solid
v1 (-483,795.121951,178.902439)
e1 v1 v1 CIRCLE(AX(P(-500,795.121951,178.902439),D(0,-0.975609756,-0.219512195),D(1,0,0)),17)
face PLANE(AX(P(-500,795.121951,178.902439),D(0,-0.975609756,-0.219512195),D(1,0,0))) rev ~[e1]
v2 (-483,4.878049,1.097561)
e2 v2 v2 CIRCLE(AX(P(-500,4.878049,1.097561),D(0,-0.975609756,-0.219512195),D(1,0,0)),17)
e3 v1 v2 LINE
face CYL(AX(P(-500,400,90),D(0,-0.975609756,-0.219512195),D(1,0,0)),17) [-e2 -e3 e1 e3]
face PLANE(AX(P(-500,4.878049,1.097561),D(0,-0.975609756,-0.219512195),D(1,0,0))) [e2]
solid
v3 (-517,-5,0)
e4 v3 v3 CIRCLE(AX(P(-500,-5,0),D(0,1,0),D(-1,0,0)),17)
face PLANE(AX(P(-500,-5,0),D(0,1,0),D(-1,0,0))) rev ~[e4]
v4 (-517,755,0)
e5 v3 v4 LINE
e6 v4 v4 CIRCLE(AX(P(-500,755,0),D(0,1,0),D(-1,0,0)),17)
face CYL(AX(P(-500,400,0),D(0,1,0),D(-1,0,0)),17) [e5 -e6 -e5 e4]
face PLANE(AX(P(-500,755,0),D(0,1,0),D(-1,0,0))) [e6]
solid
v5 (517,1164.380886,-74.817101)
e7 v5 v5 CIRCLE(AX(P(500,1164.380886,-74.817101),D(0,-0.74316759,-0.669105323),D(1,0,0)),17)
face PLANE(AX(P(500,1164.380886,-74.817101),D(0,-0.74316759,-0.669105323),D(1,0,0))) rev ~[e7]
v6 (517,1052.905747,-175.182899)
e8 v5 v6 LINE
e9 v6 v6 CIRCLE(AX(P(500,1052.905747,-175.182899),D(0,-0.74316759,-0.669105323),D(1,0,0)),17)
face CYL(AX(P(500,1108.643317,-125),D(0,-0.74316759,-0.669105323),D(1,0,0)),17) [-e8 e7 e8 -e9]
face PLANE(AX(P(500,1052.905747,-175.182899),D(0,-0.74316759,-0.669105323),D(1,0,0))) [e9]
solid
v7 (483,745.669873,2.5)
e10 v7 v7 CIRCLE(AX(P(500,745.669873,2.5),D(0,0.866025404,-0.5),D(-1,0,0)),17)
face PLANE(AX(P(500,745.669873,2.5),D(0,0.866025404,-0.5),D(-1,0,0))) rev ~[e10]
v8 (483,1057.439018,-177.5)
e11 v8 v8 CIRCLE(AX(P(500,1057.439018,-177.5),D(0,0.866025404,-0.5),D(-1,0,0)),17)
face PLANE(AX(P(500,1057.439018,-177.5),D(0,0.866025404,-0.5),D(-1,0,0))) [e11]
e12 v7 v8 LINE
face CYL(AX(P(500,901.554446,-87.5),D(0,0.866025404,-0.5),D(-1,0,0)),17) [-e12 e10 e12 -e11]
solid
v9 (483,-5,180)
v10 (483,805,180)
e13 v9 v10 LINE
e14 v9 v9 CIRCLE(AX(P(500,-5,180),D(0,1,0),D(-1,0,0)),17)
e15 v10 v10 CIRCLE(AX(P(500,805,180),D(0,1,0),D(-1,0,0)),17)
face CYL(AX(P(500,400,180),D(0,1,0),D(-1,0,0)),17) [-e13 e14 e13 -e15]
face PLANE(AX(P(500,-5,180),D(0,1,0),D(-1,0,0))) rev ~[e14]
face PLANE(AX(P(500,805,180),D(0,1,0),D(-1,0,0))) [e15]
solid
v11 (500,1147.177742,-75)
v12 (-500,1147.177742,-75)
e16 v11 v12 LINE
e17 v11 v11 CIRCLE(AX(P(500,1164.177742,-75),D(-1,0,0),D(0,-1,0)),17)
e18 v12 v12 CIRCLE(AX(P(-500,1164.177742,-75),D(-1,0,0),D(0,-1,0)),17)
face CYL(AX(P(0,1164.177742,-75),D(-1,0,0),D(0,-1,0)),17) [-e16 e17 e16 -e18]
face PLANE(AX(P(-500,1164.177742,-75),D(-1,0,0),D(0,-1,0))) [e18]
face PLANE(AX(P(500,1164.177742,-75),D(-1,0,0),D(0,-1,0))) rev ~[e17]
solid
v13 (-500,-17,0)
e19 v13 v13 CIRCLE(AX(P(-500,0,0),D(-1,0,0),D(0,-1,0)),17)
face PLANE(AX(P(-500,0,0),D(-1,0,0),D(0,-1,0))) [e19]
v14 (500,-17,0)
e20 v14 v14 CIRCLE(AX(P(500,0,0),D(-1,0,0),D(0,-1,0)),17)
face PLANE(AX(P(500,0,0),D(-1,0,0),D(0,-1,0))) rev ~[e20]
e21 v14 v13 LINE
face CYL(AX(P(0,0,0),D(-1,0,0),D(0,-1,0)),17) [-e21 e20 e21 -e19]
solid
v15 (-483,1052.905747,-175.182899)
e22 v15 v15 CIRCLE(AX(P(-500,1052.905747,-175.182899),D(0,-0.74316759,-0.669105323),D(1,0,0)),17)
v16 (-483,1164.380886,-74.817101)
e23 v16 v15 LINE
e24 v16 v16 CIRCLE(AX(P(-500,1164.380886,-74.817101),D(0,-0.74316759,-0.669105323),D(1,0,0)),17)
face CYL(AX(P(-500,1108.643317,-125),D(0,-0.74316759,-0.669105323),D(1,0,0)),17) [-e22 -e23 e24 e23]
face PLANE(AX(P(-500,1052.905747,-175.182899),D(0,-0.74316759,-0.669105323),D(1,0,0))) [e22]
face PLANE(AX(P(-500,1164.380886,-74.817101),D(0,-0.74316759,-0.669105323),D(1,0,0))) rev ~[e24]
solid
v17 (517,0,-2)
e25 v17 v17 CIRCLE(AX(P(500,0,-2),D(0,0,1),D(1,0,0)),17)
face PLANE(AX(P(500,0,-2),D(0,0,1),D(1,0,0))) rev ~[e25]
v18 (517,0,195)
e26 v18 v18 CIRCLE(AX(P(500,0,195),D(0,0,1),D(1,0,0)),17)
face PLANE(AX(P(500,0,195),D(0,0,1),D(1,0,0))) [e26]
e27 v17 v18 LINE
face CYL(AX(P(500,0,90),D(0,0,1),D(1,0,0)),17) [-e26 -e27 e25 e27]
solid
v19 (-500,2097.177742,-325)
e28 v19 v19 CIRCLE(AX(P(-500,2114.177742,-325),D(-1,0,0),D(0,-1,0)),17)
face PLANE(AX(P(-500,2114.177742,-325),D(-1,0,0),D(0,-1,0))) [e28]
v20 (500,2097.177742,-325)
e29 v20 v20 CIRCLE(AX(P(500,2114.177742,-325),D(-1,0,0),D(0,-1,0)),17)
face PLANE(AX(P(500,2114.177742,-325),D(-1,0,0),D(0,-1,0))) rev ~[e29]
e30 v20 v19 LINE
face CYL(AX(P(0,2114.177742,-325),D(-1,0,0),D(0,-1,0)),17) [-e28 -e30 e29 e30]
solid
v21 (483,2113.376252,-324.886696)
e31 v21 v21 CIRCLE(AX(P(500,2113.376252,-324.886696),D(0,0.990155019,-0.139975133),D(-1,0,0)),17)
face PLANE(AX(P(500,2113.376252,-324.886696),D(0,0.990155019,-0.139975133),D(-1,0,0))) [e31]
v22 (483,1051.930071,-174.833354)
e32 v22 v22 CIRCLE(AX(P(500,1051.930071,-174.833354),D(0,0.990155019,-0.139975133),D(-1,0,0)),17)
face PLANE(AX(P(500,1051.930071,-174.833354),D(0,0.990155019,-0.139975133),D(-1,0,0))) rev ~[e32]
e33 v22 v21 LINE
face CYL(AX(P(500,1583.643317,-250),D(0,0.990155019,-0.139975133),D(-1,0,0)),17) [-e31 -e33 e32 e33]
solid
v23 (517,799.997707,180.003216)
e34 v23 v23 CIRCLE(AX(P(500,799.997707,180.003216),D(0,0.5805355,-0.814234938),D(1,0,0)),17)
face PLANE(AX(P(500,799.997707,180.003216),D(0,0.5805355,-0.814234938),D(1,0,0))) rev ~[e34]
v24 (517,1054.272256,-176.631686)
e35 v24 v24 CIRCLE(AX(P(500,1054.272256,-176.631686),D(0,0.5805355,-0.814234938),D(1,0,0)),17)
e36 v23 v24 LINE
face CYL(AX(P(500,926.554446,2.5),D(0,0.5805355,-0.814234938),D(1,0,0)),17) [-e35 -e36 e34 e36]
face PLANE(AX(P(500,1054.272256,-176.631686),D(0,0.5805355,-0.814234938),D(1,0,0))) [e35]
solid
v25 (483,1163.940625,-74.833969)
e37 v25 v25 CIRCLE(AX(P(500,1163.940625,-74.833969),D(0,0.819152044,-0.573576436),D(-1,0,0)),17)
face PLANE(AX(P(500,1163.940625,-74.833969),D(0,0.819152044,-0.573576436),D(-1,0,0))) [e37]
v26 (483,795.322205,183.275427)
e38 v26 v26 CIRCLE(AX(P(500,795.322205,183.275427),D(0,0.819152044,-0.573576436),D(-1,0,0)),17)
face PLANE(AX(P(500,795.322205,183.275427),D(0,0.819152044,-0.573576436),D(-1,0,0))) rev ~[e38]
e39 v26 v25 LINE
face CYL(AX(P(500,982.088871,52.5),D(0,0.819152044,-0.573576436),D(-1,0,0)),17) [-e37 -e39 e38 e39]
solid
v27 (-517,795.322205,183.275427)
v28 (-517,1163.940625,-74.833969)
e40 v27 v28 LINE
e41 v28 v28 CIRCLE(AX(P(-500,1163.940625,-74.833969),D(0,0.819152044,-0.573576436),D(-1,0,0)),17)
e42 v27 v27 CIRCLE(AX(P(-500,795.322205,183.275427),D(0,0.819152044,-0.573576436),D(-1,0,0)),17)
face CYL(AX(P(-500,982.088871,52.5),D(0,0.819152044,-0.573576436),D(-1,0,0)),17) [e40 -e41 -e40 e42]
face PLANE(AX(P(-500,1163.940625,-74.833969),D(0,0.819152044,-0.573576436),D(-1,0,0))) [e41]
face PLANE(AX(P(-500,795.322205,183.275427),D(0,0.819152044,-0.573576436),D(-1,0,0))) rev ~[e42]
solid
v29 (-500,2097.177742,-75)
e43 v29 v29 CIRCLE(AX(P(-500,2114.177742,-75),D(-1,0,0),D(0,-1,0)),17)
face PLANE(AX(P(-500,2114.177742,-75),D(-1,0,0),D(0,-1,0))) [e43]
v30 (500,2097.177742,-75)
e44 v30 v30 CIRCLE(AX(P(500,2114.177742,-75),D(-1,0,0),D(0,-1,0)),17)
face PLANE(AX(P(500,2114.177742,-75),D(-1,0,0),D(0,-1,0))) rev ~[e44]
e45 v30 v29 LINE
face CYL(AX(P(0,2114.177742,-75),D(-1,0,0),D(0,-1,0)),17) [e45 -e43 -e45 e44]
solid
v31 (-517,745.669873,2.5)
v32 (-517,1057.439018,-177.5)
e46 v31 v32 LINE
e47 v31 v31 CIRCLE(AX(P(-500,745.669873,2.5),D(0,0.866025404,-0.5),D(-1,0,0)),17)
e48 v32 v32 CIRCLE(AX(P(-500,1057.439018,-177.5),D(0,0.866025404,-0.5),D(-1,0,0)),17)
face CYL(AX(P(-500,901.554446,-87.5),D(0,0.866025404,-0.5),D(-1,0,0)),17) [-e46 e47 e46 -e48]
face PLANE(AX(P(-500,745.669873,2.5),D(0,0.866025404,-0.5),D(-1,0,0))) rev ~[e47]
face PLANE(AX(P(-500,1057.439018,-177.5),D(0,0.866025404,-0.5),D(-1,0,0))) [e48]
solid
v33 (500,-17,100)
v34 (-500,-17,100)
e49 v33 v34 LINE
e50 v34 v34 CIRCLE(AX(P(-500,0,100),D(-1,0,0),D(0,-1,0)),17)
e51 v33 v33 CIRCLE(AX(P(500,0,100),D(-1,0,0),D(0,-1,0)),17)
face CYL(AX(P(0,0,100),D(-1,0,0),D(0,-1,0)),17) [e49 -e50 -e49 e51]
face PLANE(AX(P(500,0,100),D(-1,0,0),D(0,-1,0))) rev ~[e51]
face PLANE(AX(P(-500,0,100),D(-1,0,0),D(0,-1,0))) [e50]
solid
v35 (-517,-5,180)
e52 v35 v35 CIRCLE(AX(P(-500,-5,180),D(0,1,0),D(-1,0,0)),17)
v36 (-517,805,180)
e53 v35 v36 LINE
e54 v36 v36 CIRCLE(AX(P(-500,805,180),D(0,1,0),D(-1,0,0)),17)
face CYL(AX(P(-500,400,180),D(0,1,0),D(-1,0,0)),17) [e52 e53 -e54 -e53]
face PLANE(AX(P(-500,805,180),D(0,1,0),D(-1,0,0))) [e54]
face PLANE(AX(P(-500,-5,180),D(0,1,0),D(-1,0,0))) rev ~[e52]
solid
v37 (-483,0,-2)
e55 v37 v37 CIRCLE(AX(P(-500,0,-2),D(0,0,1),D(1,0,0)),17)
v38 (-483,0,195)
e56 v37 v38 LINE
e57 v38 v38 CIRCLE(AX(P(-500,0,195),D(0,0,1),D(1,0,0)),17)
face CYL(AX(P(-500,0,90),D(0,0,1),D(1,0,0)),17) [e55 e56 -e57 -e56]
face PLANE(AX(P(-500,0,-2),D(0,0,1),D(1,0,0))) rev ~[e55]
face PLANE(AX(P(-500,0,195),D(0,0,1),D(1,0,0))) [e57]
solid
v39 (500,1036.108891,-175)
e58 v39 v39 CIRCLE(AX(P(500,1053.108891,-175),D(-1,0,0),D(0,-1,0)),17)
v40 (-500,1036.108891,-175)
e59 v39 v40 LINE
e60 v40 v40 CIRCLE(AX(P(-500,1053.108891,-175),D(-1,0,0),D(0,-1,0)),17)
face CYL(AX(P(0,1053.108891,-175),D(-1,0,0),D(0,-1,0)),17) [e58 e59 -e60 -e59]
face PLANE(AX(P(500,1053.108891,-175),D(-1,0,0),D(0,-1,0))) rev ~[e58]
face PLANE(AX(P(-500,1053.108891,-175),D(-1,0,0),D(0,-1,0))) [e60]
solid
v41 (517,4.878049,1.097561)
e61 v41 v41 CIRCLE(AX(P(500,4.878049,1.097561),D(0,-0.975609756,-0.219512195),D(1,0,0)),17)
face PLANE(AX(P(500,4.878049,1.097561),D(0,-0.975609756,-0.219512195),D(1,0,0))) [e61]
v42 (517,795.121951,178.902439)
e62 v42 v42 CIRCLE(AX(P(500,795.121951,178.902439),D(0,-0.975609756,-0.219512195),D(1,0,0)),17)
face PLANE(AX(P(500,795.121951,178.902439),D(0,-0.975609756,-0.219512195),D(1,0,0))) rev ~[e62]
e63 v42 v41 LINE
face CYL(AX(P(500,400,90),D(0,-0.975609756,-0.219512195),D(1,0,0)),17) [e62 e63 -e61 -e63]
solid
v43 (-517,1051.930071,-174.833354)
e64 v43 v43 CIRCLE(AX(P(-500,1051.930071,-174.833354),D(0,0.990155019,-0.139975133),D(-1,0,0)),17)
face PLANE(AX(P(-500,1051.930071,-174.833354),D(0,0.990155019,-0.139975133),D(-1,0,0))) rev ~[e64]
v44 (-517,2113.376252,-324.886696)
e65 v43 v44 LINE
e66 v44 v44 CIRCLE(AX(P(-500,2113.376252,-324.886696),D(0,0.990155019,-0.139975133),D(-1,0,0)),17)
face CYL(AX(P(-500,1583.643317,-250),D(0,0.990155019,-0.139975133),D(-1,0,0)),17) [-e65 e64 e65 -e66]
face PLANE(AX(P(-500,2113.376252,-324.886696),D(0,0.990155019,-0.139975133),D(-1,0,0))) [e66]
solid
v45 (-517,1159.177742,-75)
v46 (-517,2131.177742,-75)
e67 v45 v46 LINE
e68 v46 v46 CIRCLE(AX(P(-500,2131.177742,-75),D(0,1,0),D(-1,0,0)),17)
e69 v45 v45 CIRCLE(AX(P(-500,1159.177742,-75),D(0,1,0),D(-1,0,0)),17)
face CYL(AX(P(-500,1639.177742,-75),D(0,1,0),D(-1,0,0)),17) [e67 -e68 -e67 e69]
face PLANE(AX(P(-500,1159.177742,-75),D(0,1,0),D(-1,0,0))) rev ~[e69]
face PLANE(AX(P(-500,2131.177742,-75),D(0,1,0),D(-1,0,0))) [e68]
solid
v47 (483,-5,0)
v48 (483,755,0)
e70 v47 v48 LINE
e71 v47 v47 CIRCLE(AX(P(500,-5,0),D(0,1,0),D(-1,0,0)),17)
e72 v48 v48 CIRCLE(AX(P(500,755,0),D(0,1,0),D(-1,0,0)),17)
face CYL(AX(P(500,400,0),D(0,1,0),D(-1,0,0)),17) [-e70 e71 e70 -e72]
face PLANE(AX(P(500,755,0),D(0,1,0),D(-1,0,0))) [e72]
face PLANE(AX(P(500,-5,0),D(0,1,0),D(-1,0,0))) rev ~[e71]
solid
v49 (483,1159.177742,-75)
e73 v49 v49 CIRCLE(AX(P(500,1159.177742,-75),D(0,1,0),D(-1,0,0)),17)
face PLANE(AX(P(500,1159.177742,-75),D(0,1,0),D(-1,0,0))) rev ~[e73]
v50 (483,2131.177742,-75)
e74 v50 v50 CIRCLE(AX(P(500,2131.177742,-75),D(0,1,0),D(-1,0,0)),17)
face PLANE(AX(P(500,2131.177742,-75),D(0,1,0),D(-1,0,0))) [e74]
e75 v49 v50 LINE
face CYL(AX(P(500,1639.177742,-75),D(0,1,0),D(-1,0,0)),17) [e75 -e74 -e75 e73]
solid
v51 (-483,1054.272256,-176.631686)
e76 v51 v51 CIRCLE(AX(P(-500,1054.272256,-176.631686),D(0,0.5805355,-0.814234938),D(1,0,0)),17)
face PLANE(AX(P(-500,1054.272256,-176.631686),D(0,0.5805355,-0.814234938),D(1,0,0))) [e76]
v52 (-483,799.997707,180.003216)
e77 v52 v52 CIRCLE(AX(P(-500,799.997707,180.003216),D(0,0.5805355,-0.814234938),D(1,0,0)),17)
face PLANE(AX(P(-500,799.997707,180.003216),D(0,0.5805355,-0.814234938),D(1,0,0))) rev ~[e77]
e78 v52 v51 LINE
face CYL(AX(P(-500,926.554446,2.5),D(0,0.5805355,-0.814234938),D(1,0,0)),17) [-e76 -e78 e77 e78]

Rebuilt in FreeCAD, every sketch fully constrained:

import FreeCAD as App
import Part
import Sketcher

doc = App.newDocument("Part")
body = doc.addObject("PartDesign::Body", "Body")

# Sketch on XZ plane
sketch1 = body.newObject("Sketcher::SketchObject", "Sketch")
sketch1.AttachmentSupport = (doc.getObject("XZ_Plane"), [""])
sketch1.MapMode = "FlatFace"
sketch1.AttachmentOffset = App.Placement(App.Vector(0, 0, -400), App.Rotation())
sketch1.addGeometry(Part.Circle(App.Vector(500, 180, 0), App.Vector(0, 0, 1), 17), False)
sketch1.addConstraint([
    Sketcher.Constraint("Diameter", 0, 34.0),
    Sketcher.Constraint("DistanceX", -1, 1, 0, 3, 500.0),
    Sketcher.Constraint("DistanceY", -1, 1, 0, 3, 180.0),
])
pad1 = body.newObject("PartDesign::Pad", "Pad")
pad1.Profile = sketch1
pad1.Type = "TwoLengths"
pad1.Length = 405
pad1.Length2 = 405
pad1.Reversed = True
body2 = doc.addObject("PartDesign::Body", "Body001")

# Sketch on XZ plane
sketch2 = body2.newObject("Sketcher::SketchObject", "Sketch001")
sketch2.AttachmentSupport = (doc.getObject("XZ_Plane001"), [""])
sketch2.MapMode = "FlatFace"
sketch2.AttachmentOffset = App.Placement(App.Vector(0, 0, -400), App.Rotation())
sketch2.addGeometry(Part.Circle(App.Vector(-500, 180, 0), App.Vector(0, 0, 1), 17), False)
sketch2.addConstraint([
    Sketcher.Constraint("Diameter", 0, 34.0),
    Sketcher.Constraint("DistanceX", 0, 3, -1, 1, 500.0),
    Sketcher.Constraint("DistanceY", -1, 1, 0, 3, 180.0),
])
pad2 = body2.newObject("PartDesign::Pad", "Pad001")
pad2.Profile = sketch2
pad2.Type = "TwoLengths"
pad2.Length = 405
pad2.Length2 = 405
pad2.Reversed = True
body3 = doc.addObject("PartDesign::Body", "Body002")

# Sketch on XZ plane
sketch3 = body3.newObject("Sketcher::SketchObject", "Sketch002")
sketch3.AttachmentSupport = (doc.getObject("XZ_Plane002"), [""])
sketch3.MapMode = "FlatFace"
sketch3.AttachmentOffset = App.Placement(App.Vector(0, 0, -400), App.Rotation())
sketch3.addGeometry(Part.Circle(App.Vector(500, 0, 0), App.Vector(0, 0, 1), 17), False)
sketch3.addConstraint([
    Sketcher.Constraint("PointOnObject", 0, 3, -1),
    Sketcher.Constraint("Diameter", 0, 34.0),
    Sketcher.Constraint("DistanceX", -1, 1, 0, 3, 500.0),
])
pad3 = body3.newObject("PartDesign::Pad", "Pad002")
pad3.Profile = sketch3
pad3.Type = "TwoLengths"
pad3.Length = 355
pad3.Length2 = 405
pad3.Reversed = True
body4 = doc.addObject("PartDesign::Body", "Body003")

# Sketch on XZ plane
sketch4 = body4.newObject("Sketcher::SketchObject", "Sketch003")
sketch4.AttachmentSupport = (doc.getObject("XZ_Plane003"), [""])
sketch4.MapMode = "FlatFace"
sketch4.AttachmentOffset = App.Placement(App.Vector(0, 0, -400), App.Rotation())
sketch4.addGeometry(Part.Circle(App.Vector(-500, 0, 0), App.Vector(0, 0, 1), 17), False)
sketch4.addConstraint([
    Sketcher.Constraint("PointOnObject", 0, 3, -1),
    Sketcher.Constraint("Diameter", 0, 34.0),
    Sketcher.Constraint("DistanceX", 0, 3, -1, 1, 500.0),
])
pad4 = body4.newObject("PartDesign::Pad", "Pad003")
pad4.Profile = sketch4
pad4.Type = "TwoLengths"
pad4.Length = 355
pad4.Length2 = 405
pad4.Reversed = True
body5 = doc.addObject("PartDesign::Body", "Body004")

# Sketch on an angled plane
sketch5 = body5.newObject("Sketcher::SketchObject", "Sketch004")
sketch5.Placement = App.Placement(App.Vector(0, 634.324592, -444.158861), App.Rotation(App.Vector(-1, 0, 0), App.Vector(0, 0.573576436, 0.819152044), App.Vector(0, 0.819152044, -0.573576436), "ZXY"))
sketch5.addGeometry(Part.Circle(App.Vector(-500, 606.308517, 0), App.Vector(0, 0, 1), 17), False)
sketch5.addConstraint([
    Sketcher.Constraint("Diameter", 0, 34.0),
    Sketcher.Constraint("DistanceX", 0, 3, -1, 1, 500.0),
    Sketcher.Constraint("DistanceY", -1, 1, 0, 3, 606.308517),
])
pad5 = body5.newObject("PartDesign::Pad", "Pad004")
pad5.Profile = sketch5
pad5.Type = "TwoLengths"
pad5.Length = 222
pad5.Length2 = 228
body6 = doc.addObject("PartDesign::Body", "Body005")

# Sketch on an angled plane
sketch6 = body6.newObject("Sketcher::SketchObject", "Sketch005")
sketch6.Placement = App.Placement(App.Vector(0, 634.324592, -444.158861), App.Rotation(App.Vector(-1, 0, 0), App.Vector(0, 0.573576436, 0.819152044), App.Vector(0, 0.819152044, -0.573576436), "ZXY"))
sketch6.addGeometry(Part.Circle(App.Vector(500, 606.308517, 0), App.Vector(0, 0, 1), 17), False)
sketch6.addConstraint([
    Sketcher.Constraint("Diameter", 0, 34.0),
    Sketcher.Constraint("DistanceX", -1, 1, 0, 3, 500.0),
    Sketcher.Constraint("DistanceY", -1, 1, 0, 3, 606.308517),
])
pad6 = body6.newObject("PartDesign::Pad", "Pad005")
pad6.Profile = sketch6
pad6.Type = "TwoLengths"
pad6.Length = 222
pad6.Length2 = 228
body7 = doc.addObject("PartDesign::Body", "Body006")

# Sketch on an angled plane
sketch7 = body7.newObject("Sketcher::SketchObject", "Sketch006")
sketch7.Placement = App.Placement(App.Vector(0, 714.054446, -412.259526), App.Rotation(App.Vector(-1, 0, 0), App.Vector(0, 0.5, 0.866025404), App.Vector(0, 0.866025404, -0.5), "ZXY"))
sketch7.addGeometry(Part.Circle(App.Vector(-500, 375, 0), App.Vector(0, 0, 1), 17), False)
sketch7.addConstraint([
    Sketcher.Constraint("Diameter", 0, 34.0),
    Sketcher.Constraint("DistanceX", 0, 3, -1, 1, 500.0),
    Sketcher.Constraint("DistanceY", -1, 1, 0, 3, 375.0),
])
pad7 = body7.newObject("PartDesign::Pad", "Pad006")
pad7.Profile = sketch7
pad7.Type = "TwoLengths"
pad7.Length = 180
pad7.Length2 = 180
body8 = doc.addObject("PartDesign::Body", "Body007")

# Sketch on an angled plane
sketch8 = body8.newObject("Sketcher::SketchObject", "Sketch007")
sketch8.Placement = App.Placement(App.Vector(0, 714.054446, -412.259526), App.Rotation(App.Vector(-1, 0, 0), App.Vector(0, 0.5, 0.866025404), App.Vector(0, 0.866025404, -0.5), "ZXY"))
sketch8.addGeometry(Part.Circle(App.Vector(500, 375, 0), App.Vector(0, 0, 1), 17), False)
sketch8.addConstraint([
    Sketcher.Constraint("Diameter", 0, 34.0),
    Sketcher.Constraint("DistanceX", -1, 1, 0, 3, 500.0),
    Sketcher.Constraint("DistanceY", -1, 1, 0, 3, 375.0),
])
pad8 = body8.newObject("PartDesign::Pad", "Pad007")
pad8.Profile = sketch8
pad8.Type = "TwoLengths"
pad8.Length = 180
pad8.Length2 = 180
body9 = doc.addObject("PartDesign::Body", "Body008")

# Sketch on YZ plane
sketch9 = body9.newObject("Sketcher::SketchObject", "Sketch008")
sketch9.AttachmentSupport = (doc.getObject("YZ_Plane008"), [""])
sketch9.MapMode = "FlatFace"
sketch9.addGeometry(Part.Circle(App.Vector(1053.108891, -175, 0), App.Vector(0, 0, 1), 17), False)
sketch9.addConstraint([
    Sketcher.Constraint("Diameter", 0, 34.0),
    Sketcher.Constraint("DistanceY", 0, 3, -1, 1, 175.0),
    Sketcher.Constraint("DistanceX", -1, 1, 0, 3, 1053.108891),
])
pad9 = body9.newObject("PartDesign::Pad", "Pad008")
pad9.Profile = sketch9
pad9.Type = "TwoLengths"
pad9.Length = 500
pad9.Length2 = 500
pad9.Reversed = True
body10 = doc.addObject("PartDesign::Body", "Body009")

# Sketch on YZ plane
sketch10 = body10.newObject("Sketcher::SketchObject", "Sketch009")
sketch10.AttachmentSupport = (doc.getObject("YZ_Plane009"), [""])
sketch10.MapMode = "FlatFace"
sketch10.addGeometry(Part.Circle(App.Vector(1164.177742, -75, 0), App.Vector(0, 0, 1), 17), False)
sketch10.addConstraint([
    Sketcher.Constraint("Diameter", 0, 34.0),
    Sketcher.Constraint("DistanceY", 0, 3, -1, 1, 75.0),
    Sketcher.Constraint("DistanceX", -1, 1, 0, 3, 1164.177742),
])
pad10 = body10.newObject("PartDesign::Pad", "Pad009")
pad10.Profile = sketch10
pad10.Type = "TwoLengths"
pad10.Length = 500
pad10.Length2 = 500
pad10.Reversed = True
body11 = doc.addObject("PartDesign::Body", "Body010")

# Sketch on YZ plane
sketch11 = body11.newObject("Sketcher::SketchObject", "Sketch010")
sketch11.AttachmentSupport = (doc.getObject("YZ_Plane010"), [""])
sketch11.MapMode = "FlatFace"
sketch11.addGeometry(Part.Circle(App.Vector(0, 100, 0), App.Vector(0, 0, 1), 17), False)
sketch11.addConstraint([
    Sketcher.Constraint("PointOnObject", 0, 3, -2),
    Sketcher.Constraint("Diameter", 0, 34.0),
    Sketcher.Constraint("DistanceY", -1, 1, 0, 3, 100.0),
])
pad11 = body11.newObject("PartDesign::Pad", "Pad010")
pad11.Profile = sketch11
pad11.Type = "TwoLengths"
pad11.Length = 500
pad11.Length2 = 500
pad11.Reversed = True
body12 = doc.addObject("PartDesign::Body", "Body011")

# Sketch on YZ plane
sketch12 = body12.newObject("Sketcher::SketchObject", "Sketch011")
sketch12.AttachmentSupport = (doc.getObject("YZ_Plane011"), [""])
sketch12.MapMode = "FlatFace"
sketch12.addGeometry(Part.Circle(App.Vector(0, 0, 0), App.Vector(0, 0, 1), 17), False)
sketch12.addConstraint([
    Sketcher.Constraint("Coincident", 0, 3, -1, 1),
    Sketcher.Constraint("Diameter", 0, 34.0),
])
pad12 = body12.newObject("PartDesign::Pad", "Pad011")
pad12.Profile = sketch12
pad12.Type = "TwoLengths"
pad12.Length = 500
pad12.Length2 = 500
pad12.Reversed = True
body13 = doc.addObject("PartDesign::Body", "Body012")

# Sketch on YZ plane
sketch13 = body13.newObject("Sketcher::SketchObject", "Sketch012")
sketch13.AttachmentSupport = (doc.getObject("YZ_Plane012"), [""])
sketch13.MapMode = "FlatFace"
sketch13.addGeometry(Part.Circle(App.Vector(2114.177742, -75, 0), App.Vector(0, 0, 1), 17), False)
sketch13.addConstraint([
    Sketcher.Constraint("Diameter", 0, 34.0),
    Sketcher.Constraint("DistanceY", 0, 3, -1, 1, 75.0),
    Sketcher.Constraint("DistanceX", -1, 1, 0, 3, 2114.177742),
])
pad13 = body13.newObject("PartDesign::Pad", "Pad012")
pad13.Profile = sketch13
pad13.Type = "TwoLengths"
pad13.Length = 500
pad13.Length2 = 500
pad13.Reversed = True
body14 = doc.addObject("PartDesign::Body", "Body013")

# Sketch on YZ plane
sketch14 = body14.newObject("Sketcher::SketchObject", "Sketch013")
sketch14.AttachmentSupport = (doc.getObject("YZ_Plane013"), [""])
sketch14.MapMode = "FlatFace"
sketch14.addGeometry(Part.Circle(App.Vector(2114.177742, -325, 0), App.Vector(0, 0, 1), 17), False)
sketch14.addConstraint([
    Sketcher.Constraint("Diameter", 0, 34.0),
    Sketcher.Constraint("DistanceY", 0, 3, -1, 1, 325.0),
    Sketcher.Constraint("DistanceX", -1, 1, 0, 3, 2114.177742),
])
pad14 = body14.newObject("PartDesign::Pad", "Pad013")
pad14.Profile = sketch14
pad14.Type = "TwoLengths"
pad14.Length = 500
pad14.Length2 = 500
pad14.Reversed = True
body15 = doc.addObject("PartDesign::Body", "Body014")

# Sketch on XY plane
sketch15 = body15.newObject("Sketcher::SketchObject", "Sketch014")
sketch15.AttachmentSupport = (doc.getObject("XY_Plane014"), [""])
sketch15.MapMode = "FlatFace"
sketch15.AttachmentOffset = App.Placement(App.Vector(0, 0, 90), App.Rotation())
sketch15.addGeometry(Part.Circle(App.Vector(-500, 0, 0), App.Vector(0, 0, 1), 17), False)
sketch15.addConstraint([
    Sketcher.Constraint("PointOnObject", 0, 3, -1),
    Sketcher.Constraint("Diameter", 0, 34.0),
    Sketcher.Constraint("DistanceX", 0, 3, -1, 1, 500.0),
])
pad15 = body15.newObject("PartDesign::Pad", "Pad014")
pad15.Profile = sketch15
pad15.Type = "TwoLengths"
pad15.Length = 105
pad15.Length2 = 92
body16 = doc.addObject("PartDesign::Body", "Body015")

# Sketch on XY plane
sketch16 = body16.newObject("Sketcher::SketchObject", "Sketch015")
sketch16.AttachmentSupport = (doc.getObject("XY_Plane015"), [""])
sketch16.MapMode = "FlatFace"
sketch16.AttachmentOffset = App.Placement(App.Vector(0, 0, 90), App.Rotation())
sketch16.addGeometry(Part.Circle(App.Vector(500, 0, 0), App.Vector(0, 0, 1), 17), False)
sketch16.addConstraint([
    Sketcher.Constraint("PointOnObject", 0, 3, -1),
    Sketcher.Constraint("Diameter", 0, 34.0),
    Sketcher.Constraint("DistanceX", -1, 1, 0, 3, 500.0),
])
pad16 = body16.newObject("PartDesign::Pad", "Pad015")
pad16.Profile = sketch16
pad16.Type = "TwoLengths"
pad16.Length = 105
pad16.Length2 = 92
body17 = doc.addObject("PartDesign::Body", "Body016")

# Sketch on an angled plane
sketch17 = body17.newObject("Sketcher::SketchObject", "Sketch016")
sketch17.Placement = App.Placement(App.Vector(0, 400, 90), App.Rotation(App.Vector(1, 0, 0), App.Vector(0, -0.219512195, 0.975609756), App.Vector(0, -0.975609756, -0.219512195), "ZXY"))
sketch17.addGeometry(Part.Circle(App.Vector(-500, 0, 0), App.Vector(0, 0, 1), 17), False)
sketch17.addConstraint([
    Sketcher.Constraint("PointOnObject", 0, 3, -1),
    Sketcher.Constraint("Diameter", 0, 34.0),
    Sketcher.Constraint("DistanceX", 0, 3, -1, 1, 500.0),
])
pad17 = body17.newObject("PartDesign::Pad", "Pad016")
pad17.Profile = sketch17
pad17.Type = "TwoLengths"
pad17.Length = 405
pad17.Length2 = 405
body18 = doc.addObject("PartDesign::Body", "Body017")

# Sketch on an angled plane
sketch18 = body18.newObject("Sketcher::SketchObject", "Sketch017")
sketch18.Placement = App.Placement(App.Vector(0, 400, 90), App.Rotation(App.Vector(1, 0, 0), App.Vector(0, -0.219512195, 0.975609756), App.Vector(0, -0.975609756, -0.219512195), "ZXY"))
sketch18.addGeometry(Part.Circle(App.Vector(500, 0, 0), App.Vector(0, 0, 1), 17), False)
sketch18.addConstraint([
    Sketcher.Constraint("PointOnObject", 0, 3, -1),
    Sketcher.Constraint("Diameter", 0, 34.0),
    Sketcher.Constraint("DistanceX", -1, 1, 0, 3, 500.0),
])
pad18 = body18.newObject("PartDesign::Pad", "Pad017")
pad18.Profile = sketch18
pad18.Type = "TwoLengths"
pad18.Length = 405
pad18.Length2 = 405
body19 = doc.addObject("PartDesign::Body", "Body018")

# Sketch on an angled plane
sketch19 = body19.newObject("Sketcher::SketchObject", "Sketch018")
sketch19.Placement = App.Placement(App.Vector(0, 311.087007, -436.317693), App.Rotation(App.Vector(1, 0, 0), App.Vector(0, -0.814234938, -0.5805355), App.Vector(0, 0.5805355, -0.814234938), "ZXY"))
sketch19.addGeometry(Part.Circle(App.Vector(-500, -755.884341, 0), App.Vector(0, 0, 1), 17), False)
sketch19.addConstraint([
    Sketcher.Constraint("Diameter", 0, 34.0),
    Sketcher.Constraint("DistanceX", 0, 3, -1, 1, 500.0),
    Sketcher.Constraint("DistanceY", 0, 3, -1, 1, 755.884341),
])
pad19 = body19.newObject("PartDesign::Pad", "Pad018")
pad19.Profile = sketch19
pad19.Type = "TwoLengths"
pad19.Length = 220
pad19.Length2 = 218
body20 = doc.addObject("PartDesign::Body", "Body019")

# Sketch on an angled plane
sketch20 = body20.newObject("Sketcher::SketchObject", "Sketch019")
sketch20.Placement = App.Placement(App.Vector(0, 311.087007, -436.317693), App.Rotation(App.Vector(1, 0, 0), App.Vector(0, -0.814234938, -0.5805355), App.Vector(0, 0.5805355, -0.814234938), "ZXY"))
sketch20.addGeometry(Part.Circle(App.Vector(500, -755.884341, 0), App.Vector(0, 0, 1), 17), False)
sketch20.addConstraint([
    Sketcher.Constraint("Diameter", 0, 34.0),
    Sketcher.Constraint("DistanceX", -1, 1, 0, 3, 500.0),
    Sketcher.Constraint("DistanceY", 0, 3, -1, 1, 755.884341),
])
pad20 = body20.newObject("PartDesign::Pad", "Pad019")
pad20.Profile = sketch20
pad20.Type = "TwoLengths"
pad20.Length = 220
pad20.Length2 = 218
body21 = doc.addObject("PartDesign::Body", "Body020")

# Sketch on an angled plane
sketch21 = body21.newObject("Sketcher::SketchObject", "Sketch020")
sketch21.Placement = App.Placement(App.Vector(0, 550.144387, 495.318341), App.Rotation(App.Vector(1, 0, 0), App.Vector(0, -0.669105323, 0.74316759), App.Vector(0, -0.74316759, -0.669105323), "ZXY"))
sketch21.addGeometry(Part.Circle(App.Vector(-500, -834.695093, 0), App.Vector(0, 0, 1), 17), False)
sketch21.addConstraint([
    Sketcher.Constraint("Diameter", 0, 34.0),
    Sketcher.Constraint("DistanceX", 0, 3, -1, 1, 500.0),
    Sketcher.Constraint("DistanceY", 0, 3, -1, 1, 834.695093),
])
pad21 = body21.newObject("PartDesign::Pad", "Pad020")
pad21.Profile = sketch21
pad21.Type = "TwoLengths"
pad21.Length = 75
pad21.Length2 = 75
body22 = doc.addObject("PartDesign::Body", "Body021")

# Sketch on an angled plane
sketch22 = body22.newObject("Sketcher::SketchObject", "Sketch021")
sketch22.Placement = App.Placement(App.Vector(0, 550.144387, 495.318341), App.Rotation(App.Vector(1, 0, 0), App.Vector(0, -0.669105323, 0.74316759), App.Vector(0, -0.74316759, -0.669105323), "ZXY"))
sketch22.addGeometry(Part.Circle(App.Vector(500, -834.695093, 0), App.Vector(0, 0, 1), 17), False)
sketch22.addConstraint([
    Sketcher.Constraint("Diameter", 0, 34.0),
    Sketcher.Constraint("DistanceX", -1, 1, 0, 3, 500.0),
    Sketcher.Constraint("DistanceY", 0, 3, -1, 1, 834.695093),
])
pad22 = body22.newObject("PartDesign::Pad", "Pad021")
pad22.Profile = sketch22
pad22.Type = "TwoLengths"
pad22.Length = 75
pad22.Length2 = 75
body23 = doc.addObject("PartDesign::Body", "Body022")

# Sketch on XZ plane
sketch23 = body23.newObject("Sketcher::SketchObject", "Sketch022")
sketch23.AttachmentSupport = (doc.getObject("XZ_Plane022"), [""])
sketch23.MapMode = "FlatFace"
sketch23.AttachmentOffset = App.Placement(App.Vector(0, 0, -1639.177742), App.Rotation())
sketch23.addGeometry(Part.Circle(App.Vector(500, -75, 0), App.Vector(0, 0, 1), 17), False)
sketch23.addConstraint([
    Sketcher.Constraint("Diameter", 0, 34.0),
    Sketcher.Constraint("DistanceX", -1, 1, 0, 3, 500.0),
    Sketcher.Constraint("DistanceY", 0, 3, -1, 1, 75.0),
])
pad23 = body23.newObject("PartDesign::Pad", "Pad022")
pad23.Profile = sketch23
pad23.Type = "TwoLengths"
pad23.Length = 492
pad23.Length2 = 480
pad23.Reversed = True
body24 = doc.addObject("PartDesign::Body", "Body023")

# Sketch on XZ plane
sketch24 = body24.newObject("Sketcher::SketchObject", "Sketch023")
sketch24.AttachmentSupport = (doc.getObject("XZ_Plane023"), [""])
sketch24.MapMode = "FlatFace"
sketch24.AttachmentOffset = App.Placement(App.Vector(0, 0, -1639.177742), App.Rotation())
sketch24.addGeometry(Part.Circle(App.Vector(-500, -75, 0), App.Vector(0, 0, 1), 17), False)
sketch24.addConstraint([
    Sketcher.Constraint("Diameter", 0, 34.0),
    Sketcher.Constraint("DistanceX", 0, 3, -1, 1, 500.0),
    Sketcher.Constraint("DistanceY", 0, 3, -1, 1, 75.0),
])
pad24 = body24.newObject("PartDesign::Pad", "Pad023")
pad24.Profile = sketch24
pad24.Type = "TwoLengths"
pad24.Length = 492
pad24.Length2 = 480
pad24.Reversed = True
body25 = doc.addObject("PartDesign::Body", "Body024")

# Sketch on an angled plane
sketch25 = body25.newObject("Sketcher::SketchObject", "Sketch024")
sketch25.Placement = App.Placement(App.Vector(0, 1587.264203, -224.386599), App.Rotation(App.Vector(-1, 0, 0), App.Vector(0, 0.139975133, 0.990155019), App.Vector(0, 0.990155019, -0.139975133), "ZXY"))
sketch25.addGeometry(Part.Circle(App.Vector(-500, -25.868072, 0), App.Vector(0, 0, 1), 17), False)
sketch25.addConstraint([
    Sketcher.Constraint("Diameter", 0, 34.0),
    Sketcher.Constraint("DistanceX", 0, 3, -1, 1, 500.0),
    Sketcher.Constraint("DistanceY", 0, 3, -1, 1, 25.868072),
])
pad25 = body25.newObject("PartDesign::Pad", "Pad024")
pad25.Profile = sketch25
pad25.Type = "TwoLengths"
pad25.Length = 535
pad25.Length2 = 537
body26 = doc.addObject("PartDesign::Body", "Body025")

# Sketch on an angled plane
sketch26 = body26.newObject("Sketcher::SketchObject", "Sketch025")
sketch26.Placement = App.Placement(App.Vector(0, 1587.264203, -224.386599), App.Rotation(App.Vector(-1, 0, 0), App.Vector(0, 0.139975133, 0.990155019), App.Vector(0, 0.990155019, -0.139975133), "ZXY"))
sketch26.addGeometry(Part.Circle(App.Vector(500, -25.868072, 0), App.Vector(0, 0, 1), 17), False)
sketch26.addConstraint([
    Sketcher.Constraint("Diameter", 0, 34.0),
    Sketcher.Constraint("DistanceX", -1, 1, 0, 3, 500.0),
    Sketcher.Constraint("DistanceY", 0, 3, -1, 1, 25.868072),
])
pad26 = body26.newObject("PartDesign::Pad", "Pad025")
pad26.Profile = sketch26
pad26.Type = "TwoLengths"
pad26.Length = 535
pad26.Length2 = 537

doc.recompute()
